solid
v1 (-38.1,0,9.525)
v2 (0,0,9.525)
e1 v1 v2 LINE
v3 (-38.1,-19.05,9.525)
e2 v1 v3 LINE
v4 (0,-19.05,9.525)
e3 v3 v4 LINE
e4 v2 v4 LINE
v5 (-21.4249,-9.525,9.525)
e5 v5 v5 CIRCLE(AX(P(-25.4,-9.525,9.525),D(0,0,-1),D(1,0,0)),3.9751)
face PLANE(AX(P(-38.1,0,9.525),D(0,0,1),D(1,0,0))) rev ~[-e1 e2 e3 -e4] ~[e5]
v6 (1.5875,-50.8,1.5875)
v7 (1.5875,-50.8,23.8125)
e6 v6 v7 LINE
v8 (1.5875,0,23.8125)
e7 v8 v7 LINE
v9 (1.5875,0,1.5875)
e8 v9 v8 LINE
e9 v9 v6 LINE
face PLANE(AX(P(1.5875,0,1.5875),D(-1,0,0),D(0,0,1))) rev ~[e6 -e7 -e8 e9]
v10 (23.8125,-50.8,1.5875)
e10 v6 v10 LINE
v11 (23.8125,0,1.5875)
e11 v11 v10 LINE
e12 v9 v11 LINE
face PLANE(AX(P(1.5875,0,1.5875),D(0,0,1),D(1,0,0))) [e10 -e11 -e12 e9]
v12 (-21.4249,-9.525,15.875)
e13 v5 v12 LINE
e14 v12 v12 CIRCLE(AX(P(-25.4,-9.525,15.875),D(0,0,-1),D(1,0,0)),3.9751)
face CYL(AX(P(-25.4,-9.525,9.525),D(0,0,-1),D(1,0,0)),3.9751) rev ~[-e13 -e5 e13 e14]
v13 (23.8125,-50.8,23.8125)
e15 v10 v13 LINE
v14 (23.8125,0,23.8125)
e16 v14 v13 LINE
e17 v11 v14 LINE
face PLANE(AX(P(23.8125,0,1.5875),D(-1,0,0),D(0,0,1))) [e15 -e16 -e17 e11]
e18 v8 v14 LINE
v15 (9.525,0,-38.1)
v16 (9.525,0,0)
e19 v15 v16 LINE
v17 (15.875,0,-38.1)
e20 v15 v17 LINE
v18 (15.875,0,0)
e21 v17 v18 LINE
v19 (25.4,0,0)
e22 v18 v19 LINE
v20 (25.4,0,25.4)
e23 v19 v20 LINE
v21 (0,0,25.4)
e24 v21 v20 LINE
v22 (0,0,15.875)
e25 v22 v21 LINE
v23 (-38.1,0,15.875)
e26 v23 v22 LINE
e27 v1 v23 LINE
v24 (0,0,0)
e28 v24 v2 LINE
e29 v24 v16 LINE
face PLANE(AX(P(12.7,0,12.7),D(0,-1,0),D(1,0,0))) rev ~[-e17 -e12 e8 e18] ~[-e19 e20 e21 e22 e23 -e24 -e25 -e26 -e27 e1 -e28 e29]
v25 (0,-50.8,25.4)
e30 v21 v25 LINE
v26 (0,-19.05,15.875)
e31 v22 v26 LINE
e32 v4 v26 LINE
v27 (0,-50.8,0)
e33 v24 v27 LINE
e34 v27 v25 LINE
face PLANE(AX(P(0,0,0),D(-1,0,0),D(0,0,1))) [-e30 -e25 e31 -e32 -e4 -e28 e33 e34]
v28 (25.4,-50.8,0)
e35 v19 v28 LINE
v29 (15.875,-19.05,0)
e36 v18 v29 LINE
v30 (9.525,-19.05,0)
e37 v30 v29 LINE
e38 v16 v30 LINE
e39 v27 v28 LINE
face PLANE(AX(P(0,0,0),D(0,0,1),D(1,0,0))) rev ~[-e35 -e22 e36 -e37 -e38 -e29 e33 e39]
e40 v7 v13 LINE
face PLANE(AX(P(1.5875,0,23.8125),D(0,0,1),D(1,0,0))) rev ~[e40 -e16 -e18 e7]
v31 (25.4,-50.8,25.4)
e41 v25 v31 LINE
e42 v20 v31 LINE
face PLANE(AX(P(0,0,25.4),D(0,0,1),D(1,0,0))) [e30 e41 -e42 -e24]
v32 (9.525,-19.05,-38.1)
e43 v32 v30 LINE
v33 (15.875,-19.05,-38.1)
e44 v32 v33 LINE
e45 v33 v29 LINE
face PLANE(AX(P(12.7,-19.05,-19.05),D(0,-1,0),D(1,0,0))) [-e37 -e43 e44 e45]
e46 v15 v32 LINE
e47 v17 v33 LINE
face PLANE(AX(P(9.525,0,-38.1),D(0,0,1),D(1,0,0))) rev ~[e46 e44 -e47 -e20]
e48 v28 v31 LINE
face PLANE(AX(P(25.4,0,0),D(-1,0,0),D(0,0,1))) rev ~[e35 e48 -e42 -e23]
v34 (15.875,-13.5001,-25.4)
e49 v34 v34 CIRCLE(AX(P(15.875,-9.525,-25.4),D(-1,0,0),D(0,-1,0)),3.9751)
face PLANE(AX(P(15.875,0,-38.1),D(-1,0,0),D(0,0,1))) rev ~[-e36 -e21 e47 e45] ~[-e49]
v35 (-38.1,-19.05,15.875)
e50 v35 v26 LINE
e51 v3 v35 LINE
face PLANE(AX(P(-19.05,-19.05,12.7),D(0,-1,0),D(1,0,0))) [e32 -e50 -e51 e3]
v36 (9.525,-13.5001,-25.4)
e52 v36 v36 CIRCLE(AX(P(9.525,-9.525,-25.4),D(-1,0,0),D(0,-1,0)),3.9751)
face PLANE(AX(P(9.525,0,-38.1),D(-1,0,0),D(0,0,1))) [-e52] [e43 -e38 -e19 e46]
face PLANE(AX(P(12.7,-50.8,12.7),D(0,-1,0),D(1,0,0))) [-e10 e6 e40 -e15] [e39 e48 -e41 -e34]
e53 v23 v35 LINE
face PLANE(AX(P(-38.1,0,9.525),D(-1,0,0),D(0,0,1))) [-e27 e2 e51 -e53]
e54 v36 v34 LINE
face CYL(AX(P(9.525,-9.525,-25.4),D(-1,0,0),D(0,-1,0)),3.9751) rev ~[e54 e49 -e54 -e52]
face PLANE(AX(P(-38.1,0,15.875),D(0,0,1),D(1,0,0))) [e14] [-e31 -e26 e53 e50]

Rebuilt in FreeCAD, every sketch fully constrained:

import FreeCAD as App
import Part
import Sketcher
Q = App.Units.Quantity

doc = App.newDocument("Part")
body = doc.addObject("PartDesign::Body", "Body")

# Sketch on XZ plane
sketch1 = doc.addObject("Sketcher::SketchObject", "Sketch")
body.addObject(sketch1)
sketch1.AttachmentSupport = (doc.XZ_Plane, [""])
sketch1.MapMode = "FlatFace"
sketch1.addGeometry([
    Part.LineSegment(App.Vector(0, 25, 0), App.Vector(0, 0, 0)),  # 0
    Part.LineSegment(App.Vector(0, 0, 0), App.Vector(25, 0, 0)),  # 1
    Part.LineSegment(App.Vector(25, 0, 0), App.Vector(25, 25, 0)),  # 2
    Part.LineSegment(App.Vector(25, 25, 0), App.Vector(0, 25, 0)),  # 3
    Part.LineSegment(App.Vector(24, 2, 0), App.Vector(2, 2, 0)),  # 4
    Part.LineSegment(App.Vector(2, 2, 0), App.Vector(2, 24, 0)),  # 5
    Part.LineSegment(App.Vector(2, 24, 0), App.Vector(24, 24, 0)),  # 6
    Part.LineSegment(App.Vector(24, 24, 0), App.Vector(24, 2, 0)),  # 7
], False)
sketch1.addConstraint([
    Sketcher.Constraint("Coincident", 0, 2, 1, 1),
    Sketcher.Constraint("Coincident", 1, 2, 2, 1),
    Sketcher.Constraint("Coincident", 2, 2, 3, 1),
    Sketcher.Constraint("Coincident", 3, 2, 0, 1),
    Sketcher.Constraint("Coincident", 4, 2, 5, 1),
    Sketcher.Constraint("Coincident", 5, 2, 6, 1),
    Sketcher.Constraint("Coincident", 6, 2, 7, 1),
    Sketcher.Constraint("Coincident", 7, 2, 4, 1),
    Sketcher.Constraint("Vertical", 0),
    Sketcher.Constraint("Horizontal", 1),
    Sketcher.Constraint("Vertical", 2),
    Sketcher.Constraint("Horizontal", 3),
    Sketcher.Constraint("Horizontal", 4),
    Sketcher.Constraint("Vertical", 5),
    Sketcher.Constraint("Horizontal", 6),
    Sketcher.Constraint("Vertical", 7),
    Sketcher.Constraint("Coincident", 0, 2, -1, 1),
    Sketcher.Constraint("Equal", 3, 0),
    Sketcher.Constraint("Equal", 6, 5),
    Sketcher.Constraint("DistanceX", 1, 1, 1, 2, Q("1 in")),
    Sketcher.Constraint("DistanceX", 4, 2, 4, 1, Q("0.875 in")),
    Sketcher.Constraint("DistanceX", -1, 1, 4, 2, Q("0.0625 in")),
    Sketcher.Constraint("DistanceY", -1, 1, 4, 2, Q("0.0625 in")),
])
pad1 = doc.addObject("PartDesign::Pad", "Pad")
body.addObject(pad1)
pad1.Profile = sketch1
pad1.Length = Q("2 in")

# Sketch on XZ plane
sketch2 = doc.addObject("Sketcher::SketchObject", "Sketch001")
body.addObject(sketch2)
sketch2.AttachmentSupport = (doc.XZ_Plane, [""])
sketch2.MapMode = "FlatFace"
sketch2.addGeometry([
    Part.LineSegment(App.Vector(10, 0, 0), App.Vector(10, -38, 0)),  # 0
    Part.LineSegment(App.Vector(10, -38, 0), App.Vector(16, -38, 0)),  # 1
    Part.LineSegment(App.Vector(16, -38, 0), App.Vector(16, 0, 0)),  # 2
    Part.LineSegment(App.Vector(16, 0, 0), App.Vector(10, 0, 0)),  # 3
    Part.LineSegment(App.Vector(-38, 16, 0), App.Vector(-38, 10, 0)),  # 4
    Part.LineSegment(App.Vector(-38, 10, 0), App.Vector(0, 10, 0)),  # 5
    Part.LineSegment(App.Vector(0, 10, 0), App.Vector(0, 16, 0)),  # 6
    Part.LineSegment(App.Vector(0, 16, 0), App.Vector(-38, 16, 0)),  # 7
], False)
sketch2.addConstraint([
    Sketcher.Constraint("Coincident", 0, 2, 1, 1),
    Sketcher.Constraint("Coincident", 1, 2, 2, 1),
    Sketcher.Constraint("Coincident", 2, 2, 3, 1),
    Sketcher.Constraint("Coincident", 3, 2, 0, 1),
    Sketcher.Constraint("Coincident", 4, 2, 5, 1),
    Sketcher.Constraint("Coincident", 5, 2, 6, 1),
    Sketcher.Constraint("Coincident", 6, 2, 7, 1),
    Sketcher.Constraint("Coincident", 7, 2, 4, 1),
    Sketcher.Constraint("Vertical", 0),
    Sketcher.Constraint("Horizontal", 1),
    Sketcher.Constraint("Vertical", 2),
    Sketcher.Constraint("Horizontal", 3),
    Sketcher.Constraint("Vertical", 4),
    Sketcher.Constraint("Horizontal", 5),
    Sketcher.Constraint("Vertical", 6),
    Sketcher.Constraint("Horizontal", 7),
    Sketcher.Constraint("PointOnObject", 2, 2, -1),
    Sketcher.Constraint("PointOnObject", 5, 2, -2),
    Sketcher.Constraint("Equal", 7, 0),
    Sketcher.Constraint("Equal", 3, 4),
    Sketcher.Constraint("DistanceX", 5, 1, 5, 2, Q("1.5 in")),
    Sketcher.Constraint("DistanceX", 1, 1, 1, 2, Q("0.25 in")),
    Sketcher.Constraint("DistanceX", -1, 1, 0, 2, Q("0.375 in")),
    Sketcher.Constraint("DistanceY", -1, 1, 4, 2, Q("0.375 in")),
])
pad2 = doc.addObject("PartDesign::Pad", "Pad001")
body.addObject(pad2)
pad2.Profile = sketch2
pad2.Length = Q("0.75 in")

# Sketch on YZ plane
sketch3 = doc.addObject("Sketcher::SketchObject", "Sketch002")
body.addObject(sketch3)
sketch3.AttachmentSupport = (doc.YZ_Plane, [""])
sketch3.MapMode = "FlatFace"
sketch3.AttachmentOffset = App.Placement(App.Vector(0, 0, 0.375 * 25.4), App.Rotation())
sketch3.addGeometry(Part.Circle(App.Vector(-9.5, -25.4, 0), App.Vector(0, 0, 1), 4), False)
sketch3.addConstraint([
    Sketcher.Constraint("Diameter", 0, Q("0.313 in")),
    Sketcher.Constraint("DistanceY", 0, 3, -1, 1, Q("1 in")),
    Sketcher.Constraint("DistanceX", 0, 3, -1, 1, Q("0.375 in")),
])
pocket1 = doc.addObject("PartDesign::Pocket", "Pocket")
body.addObject(pocket1)
pocket1.Profile = sketch3
pocket1.Length = Q("1 in")
pocket1.Reversed = True

# Sketch on XY plane
sketch4 = doc.addObject("Sketcher::SketchObject", "Sketch003")
body.addObject(sketch4)
sketch4.AttachmentSupport = (doc.XY_Plane, [""])
sketch4.MapMode = "FlatFace"
sketch4.AttachmentOffset = App.Placement(App.Vector(0, 0, 0.375 * 25.4), App.Rotation())
sketch4.addGeometry(Part.Circle(App.Vector(-25.4, -9.5, 0), App.Vector(0, 0, 1), 4), False)
sketch4.addConstraint([
    Sketcher.Constraint("Diameter", 0, Q("0.313 in")),
    Sketcher.Constraint("DistanceX", 0, 3, -1, 1, Q("1 in")),
    Sketcher.Constraint("DistanceY", 0, 3, -1, 1, Q("0.375 in")),
])
pocket2 = doc.addObject("PartDesign::Pocket", "Pocket001")
body.addObject(pocket2)
pocket2.Profile = sketch4
pocket2.Length = Q("1 in")
pocket2.Reversed = True

doc.recompute()
